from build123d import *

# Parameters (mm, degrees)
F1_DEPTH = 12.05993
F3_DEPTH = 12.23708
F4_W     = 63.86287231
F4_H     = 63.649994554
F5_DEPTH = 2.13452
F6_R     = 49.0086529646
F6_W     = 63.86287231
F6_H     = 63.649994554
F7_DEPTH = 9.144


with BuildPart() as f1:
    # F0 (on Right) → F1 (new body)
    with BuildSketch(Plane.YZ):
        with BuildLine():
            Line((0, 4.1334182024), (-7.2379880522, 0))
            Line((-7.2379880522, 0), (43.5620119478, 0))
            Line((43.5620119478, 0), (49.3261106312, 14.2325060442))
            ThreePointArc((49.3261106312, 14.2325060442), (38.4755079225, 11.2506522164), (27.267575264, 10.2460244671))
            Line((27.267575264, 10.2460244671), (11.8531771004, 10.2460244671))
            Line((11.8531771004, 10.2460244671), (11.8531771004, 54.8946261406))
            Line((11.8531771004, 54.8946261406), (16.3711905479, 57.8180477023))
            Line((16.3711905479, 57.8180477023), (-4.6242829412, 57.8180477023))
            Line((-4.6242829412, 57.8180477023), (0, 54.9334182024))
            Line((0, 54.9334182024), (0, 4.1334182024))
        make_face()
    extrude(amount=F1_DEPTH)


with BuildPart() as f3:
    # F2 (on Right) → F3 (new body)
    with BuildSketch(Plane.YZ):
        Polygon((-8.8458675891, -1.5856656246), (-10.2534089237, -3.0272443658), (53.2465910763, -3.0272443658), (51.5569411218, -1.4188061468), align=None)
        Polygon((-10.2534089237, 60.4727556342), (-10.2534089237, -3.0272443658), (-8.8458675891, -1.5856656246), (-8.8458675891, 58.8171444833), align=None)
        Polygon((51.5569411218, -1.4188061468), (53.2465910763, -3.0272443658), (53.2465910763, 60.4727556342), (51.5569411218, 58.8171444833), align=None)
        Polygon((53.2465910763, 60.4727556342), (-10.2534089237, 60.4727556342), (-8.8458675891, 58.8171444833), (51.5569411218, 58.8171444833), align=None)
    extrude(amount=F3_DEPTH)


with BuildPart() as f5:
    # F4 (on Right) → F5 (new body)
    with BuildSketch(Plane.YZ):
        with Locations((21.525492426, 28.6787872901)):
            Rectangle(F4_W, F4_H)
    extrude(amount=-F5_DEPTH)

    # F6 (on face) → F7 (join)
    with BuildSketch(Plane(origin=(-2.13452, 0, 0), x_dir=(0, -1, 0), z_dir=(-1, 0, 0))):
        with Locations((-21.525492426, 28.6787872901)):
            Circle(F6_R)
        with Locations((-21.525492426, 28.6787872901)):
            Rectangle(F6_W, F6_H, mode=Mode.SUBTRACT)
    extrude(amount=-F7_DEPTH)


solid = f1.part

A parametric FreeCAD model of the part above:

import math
import FreeCAD as App
import Part
import Sketcher
Q = App.Units.Quantity


def add_polygon(sketch, points):
    """Adds a closed chain of lines whose ends are joined by coincident constraints."""
    first, n = sketch.GeometryCount, len(points)
    for a, b in zip(points, points[1:] + points[:1]):
        sketch.addGeometry(Part.LineSegment(App.Vector(*a, 0), App.Vector(*b, 0)), False)
    for i in range(n):
        sketch.addConstraint(Sketcher.Constraint("Coincident", first + i, 2, first + (i + 1) % n, 1))

doc = App.newDocument("Part")
body = doc.addObject("PartDesign::Body", "Body")

sketch1 = body.newObject("Sketcher::SketchObject", "Sketch")
sketch1.AttachmentSupport = (doc.getObject("YZ_Plane"), [""])
sketch1.MapMode = "FlatFace"
sketch1.addGeometry([
    Part.LineSegment(App.Vector(0, 4, 0), App.Vector(-7, 0, 0)),
    Part.LineSegment(App.Vector(-7, 0, 0), App.Vector(44, 0, 0)),
    Part.LineSegment(App.Vector(44, 0, 0), App.Vector(49, 14, 0)),
    Part.ArcOfCircle(Part.Circle(App.Vector(27, 73, 0), App.Vector(0, 0, 1), 63), math.radians(-90), math.radians(-70)),
    Part.LineSegment(App.Vector(27, 10, 0), App.Vector(12, 10, 0)),
    Part.LineSegment(App.Vector(12, 10, 0), App.Vector(12, 55, 0)),
    Part.LineSegment(App.Vector(12, 55, 0), App.Vector(16, 58, 0)),
    Part.LineSegment(App.Vector(16, 58, 0), App.Vector(-5, 58, 0)),
    Part.LineSegment(App.Vector(-5, 58, 0), App.Vector(0, 55, 0)),
    Part.LineSegment(App.Vector(0, 55, 0), App.Vector(0, 4, 0)),
], False)
sketch1.addConstraint([
    Sketcher.Constraint("Coincident", 0, 2, 1, 1),
    Sketcher.Constraint("Coincident", 1, 2, 2, 1),
    Sketcher.Constraint("Coincident", 2, 2, 3, 2),
    Sketcher.Constraint("Tangent", 3, 1, 4, 1),
    Sketcher.Constraint("Coincident", 4, 2, 5, 1),
    Sketcher.Constraint("Coincident", 5, 2, 6, 1),
    Sketcher.Constraint("Coincident", 6, 2, 7, 1),
    Sketcher.Constraint("Coincident", 7, 2, 8, 1),
    Sketcher.Constraint("Coincident", 8, 2, 9, 1),
    Sketcher.Constraint("Coincident", 9, 2, 0, 1),
    Sketcher.Constraint("Horizontal", 1),
    Sketcher.Constraint("Horizontal", 4),
    Sketcher.Constraint("Vertical", 5),
    Sketcher.Constraint("Horizontal", 7),
    Sketcher.Constraint("Vertical", 9),
    Sketcher.Constraint("PointOnObject", 0, 2, -1),
    Sketcher.Constraint("PointOnObject", 8, 2, -2),
    Sketcher.Constraint("Equal", 1, 9),
    Sketcher.Constraint("DistanceX", 1, 1, 1, 2, Q("2 in")),
    Sketcher.Constraint("DistanceX", 4, 2, 4, 1, 15.414398),
    Sketcher.Constraint("DistanceY", 5, 1, 5, 2, 44.648602),
    Sketcher.Constraint("Radius", 3, 63.021866),
    Sketcher.Constraint("DistanceX", 1, 2, 2, 2, 5.764099),
    Sketcher.Constraint("Distance", 6, 5.381342),
    Sketcher.Constraint("DistanceX", 7, 2, 7, 1, 20.995473),
    Sketcher.Constraint("DistanceY", -1, 1, 3, 3, 73.267891),
    Sketcher.Constraint("DistanceX", 0, 2, -1, 1, 7.237988),
    Sketcher.Constraint("DistanceX", -1, 1, 6, 2, 16.371191),
    Sketcher.Constraint("DistanceY", -1, 1, 8, 2, 54.933418),
    Sketcher.Constraint("DistanceY", 3, 1, 2, 2, 3.986482),
])
pad1 = body.newObject("PartDesign::Pad", "Pad")
pad1.Profile = sketch1
pad1.Length = 12.05993
body2 = doc.addObject("PartDesign::Body", "Body001")

sketch2 = body2.newObject("Sketcher::SketchObject", "Sketch001")
sketch2.AttachmentSupport = (doc.getObject("YZ_Plane001"), [""])
sketch2.MapMode = "FlatFace"
add_polygon(sketch2, [(-10, -3), (53, -3), (53, 60), (-10, 60)])
add_polygon(sketch2, [(52, 59), (52, -1), (-9, -2), (-9, 59)])
sketch2.addConstraint([
    Sketcher.Constraint("Horizontal", 0),
    Sketcher.Constraint("Vertical", 1),
    Sketcher.Constraint("Horizontal", 2),
    Sketcher.Constraint("Vertical", 3),
    Sketcher.Constraint("Vertical", 4),
    Sketcher.Constraint("Vertical", 6),
    Sketcher.Constraint("Horizontal", 7),
    Sketcher.Constraint("Equal", 2, 1),
    Sketcher.Constraint("Equal", 7, 6),
    Sketcher.Constraint("DistanceX", 0, 1, 0, 2, Q("2.5 in")),
    Sketcher.Constraint("DistanceX", 7, 1, 7, 2, 60.402809),
    Sketcher.Constraint("DistanceY", 4, 2, 4, 1, 60.235951),
    Sketcher.Constraint("DistanceX", -1, 1, 0, 2, 53.246591),
    Sketcher.Constraint("DistanceX", -1, 1, 4, 2, 51.556941),
    Sketcher.Constraint("DistanceY", 0, 2, 4, 2, 1.608438),
    Sketcher.Constraint("DistanceY", 0, 2, -1, 1, 3.027244),
])
pad2 = body2.newObject("PartDesign::Pad", "Pad001")
pad2.Profile = sketch2
pad2.Length = 12.23708
body3 = doc.addObject("PartDesign::Body", "Body002")

sketch3 = body3.newObject("Sketcher::SketchObject", "Sketch002")
sketch3.AttachmentSupport = (doc.getObject("YZ_Plane002"), [""])
sketch3.MapMode = "FlatFace"
add_polygon(sketch3, [(-10, 61), (-10, -3), (53, -3), (53, 61)])
sketch3.addConstraint([
    Sketcher.Constraint("Vertical", 0),
    Sketcher.Constraint("Horizontal", 1),
    Sketcher.Constraint("Vertical", 2),
    Sketcher.Constraint("Horizontal", 3),
    Sketcher.Constraint("DistanceX", 1, 1, 1, 2, 63.862872),
    Sketcher.Constraint("DistanceY", 0, 2, 0, 1, 63.649995),
    Sketcher.Constraint("DistanceY", 0, 2, -1, 1, 3.14621),
    Sketcher.Constraint("DistanceX", -1, 1, 1, 2, 53.456929),
])
pad3 = body3.newObject("PartDesign::Pad", "Pad002")
pad3.Profile = sketch3
pad3.Length = 2.13452
pad3.Reversed = True

sketch4 = body3.newObject("Sketcher::SketchObject", "Sketch003")
sketch4.AttachmentSupport = (doc.getObject("YZ_Plane002"), [""])
sketch4.MapMode = "FlatFace"
sketch4.AttachmentOffset = App.Placement(App.Vector(0, 0, -2.13452), App.Rotation())
sketch4.addGeometry(Part.Circle(App.Vector(22, 29, 0), App.Vector(0, 0, 1), 49), False)
add_polygon(sketch4, [(-10, -3), (53, -3), (53, 61), (-10, 61)])
sketch4.addConstraint([
    Sketcher.Constraint("Horizontal", 1),
    Sketcher.Constraint("Vertical", 2),
    Sketcher.Constraint("Horizontal", 3),
    Sketcher.Constraint("Vertical", 4),
    Sketcher.Constraint("Diameter", 0, 98.017306),
    Sketcher.Constraint("DistanceX", 1, 1, 1, 2, 63.862872),
    Sketcher.Constraint("DistanceY", 2, 1, 2, 2, 63.649995),
    Sketcher.Constraint("DistanceX", -1, 1, 1, 2, 53.456929),
    Sketcher.Constraint("DistanceY", 1, 2, -1, 1, 3.14621),
    Sketcher.Constraint("DistanceX", -1, 1, 0, 3, 21.525492),
    Sketcher.Constraint("DistanceY", -1, 1, 0, 3, 28.678787),
])
pad4 = body3.newObject("PartDesign::Pad", "Pad003")
pad4.Profile = sketch4
pad4.Length = Q("0.36 in")
body2.Visibility = False
body3.Visibility = False

doc.recompute()
